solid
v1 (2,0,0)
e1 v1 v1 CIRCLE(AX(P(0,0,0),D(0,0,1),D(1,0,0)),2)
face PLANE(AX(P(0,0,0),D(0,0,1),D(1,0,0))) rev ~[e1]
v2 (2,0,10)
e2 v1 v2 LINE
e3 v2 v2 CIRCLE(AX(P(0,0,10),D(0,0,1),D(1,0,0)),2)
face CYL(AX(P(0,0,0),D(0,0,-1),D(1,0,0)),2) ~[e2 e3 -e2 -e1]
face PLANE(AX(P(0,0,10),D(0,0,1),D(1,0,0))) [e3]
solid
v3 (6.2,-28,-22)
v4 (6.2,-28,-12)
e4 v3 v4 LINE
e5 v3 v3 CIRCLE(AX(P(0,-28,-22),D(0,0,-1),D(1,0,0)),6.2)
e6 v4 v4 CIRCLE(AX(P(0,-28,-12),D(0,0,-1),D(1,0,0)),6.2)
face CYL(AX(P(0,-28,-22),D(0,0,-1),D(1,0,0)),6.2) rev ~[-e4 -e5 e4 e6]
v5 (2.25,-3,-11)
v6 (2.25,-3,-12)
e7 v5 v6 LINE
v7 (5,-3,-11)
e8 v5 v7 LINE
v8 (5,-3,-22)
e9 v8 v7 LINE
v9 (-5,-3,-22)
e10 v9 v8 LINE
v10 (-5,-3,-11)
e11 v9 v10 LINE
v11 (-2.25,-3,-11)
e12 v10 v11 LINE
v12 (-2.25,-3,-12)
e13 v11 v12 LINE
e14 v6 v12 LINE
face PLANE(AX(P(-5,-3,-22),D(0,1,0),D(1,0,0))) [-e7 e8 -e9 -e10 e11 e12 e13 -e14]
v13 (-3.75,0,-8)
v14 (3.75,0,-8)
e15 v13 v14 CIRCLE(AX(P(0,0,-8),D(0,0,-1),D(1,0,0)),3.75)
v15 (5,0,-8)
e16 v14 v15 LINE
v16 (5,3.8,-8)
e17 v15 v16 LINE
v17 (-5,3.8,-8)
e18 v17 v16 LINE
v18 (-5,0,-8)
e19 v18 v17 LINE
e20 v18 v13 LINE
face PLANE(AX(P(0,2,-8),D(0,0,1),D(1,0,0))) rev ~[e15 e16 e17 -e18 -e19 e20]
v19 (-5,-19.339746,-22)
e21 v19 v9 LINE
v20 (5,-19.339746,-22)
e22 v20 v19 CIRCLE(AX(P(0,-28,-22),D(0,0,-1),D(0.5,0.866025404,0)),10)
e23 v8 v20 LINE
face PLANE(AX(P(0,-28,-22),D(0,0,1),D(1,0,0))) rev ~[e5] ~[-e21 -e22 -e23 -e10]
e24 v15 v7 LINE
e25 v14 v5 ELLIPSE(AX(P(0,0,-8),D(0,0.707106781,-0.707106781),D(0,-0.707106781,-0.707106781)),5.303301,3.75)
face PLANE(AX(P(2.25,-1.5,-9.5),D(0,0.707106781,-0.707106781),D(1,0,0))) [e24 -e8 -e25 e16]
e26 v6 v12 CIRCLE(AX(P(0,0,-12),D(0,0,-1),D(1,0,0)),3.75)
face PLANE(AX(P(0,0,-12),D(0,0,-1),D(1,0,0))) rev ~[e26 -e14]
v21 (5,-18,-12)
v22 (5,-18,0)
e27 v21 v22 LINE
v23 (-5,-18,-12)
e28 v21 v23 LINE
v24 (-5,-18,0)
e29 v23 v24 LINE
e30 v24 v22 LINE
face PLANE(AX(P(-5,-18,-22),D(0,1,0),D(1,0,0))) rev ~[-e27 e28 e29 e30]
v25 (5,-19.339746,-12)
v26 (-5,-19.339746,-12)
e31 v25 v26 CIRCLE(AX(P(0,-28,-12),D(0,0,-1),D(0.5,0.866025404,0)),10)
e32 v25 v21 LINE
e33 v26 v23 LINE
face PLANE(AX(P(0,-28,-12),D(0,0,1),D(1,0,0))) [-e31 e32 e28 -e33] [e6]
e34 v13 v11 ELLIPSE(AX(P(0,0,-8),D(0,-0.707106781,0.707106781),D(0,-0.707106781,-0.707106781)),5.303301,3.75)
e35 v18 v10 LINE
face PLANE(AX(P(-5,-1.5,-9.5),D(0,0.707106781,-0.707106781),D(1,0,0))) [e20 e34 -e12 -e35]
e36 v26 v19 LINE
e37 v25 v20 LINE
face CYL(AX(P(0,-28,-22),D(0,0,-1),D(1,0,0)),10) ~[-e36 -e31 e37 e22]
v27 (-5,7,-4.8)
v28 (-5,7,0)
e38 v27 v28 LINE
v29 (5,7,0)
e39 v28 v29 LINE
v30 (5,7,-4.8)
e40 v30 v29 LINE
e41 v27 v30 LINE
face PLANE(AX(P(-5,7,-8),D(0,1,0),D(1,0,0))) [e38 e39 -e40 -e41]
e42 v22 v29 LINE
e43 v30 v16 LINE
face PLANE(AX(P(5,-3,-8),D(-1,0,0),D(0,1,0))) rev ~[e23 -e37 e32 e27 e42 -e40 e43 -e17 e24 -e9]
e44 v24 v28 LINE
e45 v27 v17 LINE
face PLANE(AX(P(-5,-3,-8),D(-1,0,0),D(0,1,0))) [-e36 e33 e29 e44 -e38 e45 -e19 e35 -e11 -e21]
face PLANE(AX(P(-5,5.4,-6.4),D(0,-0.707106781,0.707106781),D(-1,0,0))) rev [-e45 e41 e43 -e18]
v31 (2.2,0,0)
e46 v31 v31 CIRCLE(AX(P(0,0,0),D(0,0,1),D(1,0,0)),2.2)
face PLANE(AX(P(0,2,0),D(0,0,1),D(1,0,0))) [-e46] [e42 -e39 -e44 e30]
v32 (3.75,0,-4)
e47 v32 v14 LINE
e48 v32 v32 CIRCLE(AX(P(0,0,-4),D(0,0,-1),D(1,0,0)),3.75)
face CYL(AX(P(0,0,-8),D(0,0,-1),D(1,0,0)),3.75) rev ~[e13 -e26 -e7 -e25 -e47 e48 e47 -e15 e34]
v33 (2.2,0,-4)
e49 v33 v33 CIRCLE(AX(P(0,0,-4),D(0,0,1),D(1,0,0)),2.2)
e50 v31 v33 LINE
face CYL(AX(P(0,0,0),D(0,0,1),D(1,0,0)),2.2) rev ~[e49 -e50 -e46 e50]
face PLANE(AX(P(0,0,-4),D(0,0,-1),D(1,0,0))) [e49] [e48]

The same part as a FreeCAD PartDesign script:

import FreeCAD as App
import Part
import Sketcher
from FreeCAD import Vector
Q = App.Units.Quantity


def edges_at(feature, points):
    """Names of the edges that pass closest to the given points."""
    edges = feature.Shape.Edges
    near = lambda p: min(range(len(edges)), key=lambda i: edges[i].distToShape(Part.Vertex(*p))[0])
    return sorted({f"Edge{near(p) + 1}" for p in points})

doc = App.newDocument("Part")
params = doc.addObject("Spreadsheet::Sheet", "Params")
for row, (alias, value) in enumerate([
    ("sketch1_diameter", "4 mm"),
    ("pad1_length", "10 mm"),
    ("sketch2_width", "10 mm"),
    ("sketch2_height", "16 mm"),
    ("pad2_length", "10 mm"),
    ("sketch3_width", "10 mm"),
    ("sketch3_height", "15 mm"),
    ("pad3_length", "22 mm"),
    ("sketch4_width", "10 mm"),
    ("pad4_length", "8 mm"),
    ("sketch5_diameter", "20 mm"),
    ("pad5_length", "10 mm"),
    ("sketch6_diameter", "4.4 mm"),
    ("pocket1_length", "14 mm"),
    ("sketch7_diameter", "7.5 mm"),
    ("pocket2_length", "8 mm"),
    ("chamfer_size", "3.2 mm"),
    ("chamfer2_size", "3 mm"),
    ("sketch8_diameter", "12.4 mm"),
    ("pocket3_length", "14 mm"),
], start=1):
    params.set(f"A{row}", alias)
    params.set(f"B{row}", "=" + value)
    params.setAlias(f"B{row}", alias)

body = doc.addObject("PartDesign::Body", "Body")

# Sketch on XY plane
sketch1 = body.newObject("Sketcher::SketchObject", "Sketch")
sketch1.AttachmentSupport = (doc.getObject("XY_Plane"), [""])
sketch1.MapMode = "FlatFace"
sketch1.addGeometry(Part.Circle(Vector(0, 0, 0), Vector(0, 0, 1), 2), False)
sketch1.addConstraint([
    Sketcher.Constraint("Coincident", 0, 3, -1, 1),
    Sketcher.Constraint("Diameter", 0, Q("4 mm")),
])
sketch1.setExpression("Constraints[1]", "Params.sketch1_diameter")
pad1 = body.newObject("PartDesign::Pad", "Pad")
pad1.Profile = sketch1
pad1.setExpression("Length", "Params.pad1_length")
body2 = doc.addObject("PartDesign::Body", "Body001")

# Sketch on XY plane
sketch2 = body2.newObject("Sketcher::SketchObject", "Sketch001")
sketch2.AttachmentSupport = (doc.getObject("XY_Plane001"), [""])
sketch2.MapMode = "FlatFace"
sketch2.AttachmentOffset = App.Placement(Vector(0, 0, -22), App.Rotation())
sketch2.addGeometry([
    Part.LineSegment(Vector(-5, -4, 0), Vector(-5, -20, 0)),
    Part.LineSegment(Vector(-5, -20, 0), Vector(5, -20, 0)),
    Part.LineSegment(Vector(5, -20, 0), Vector(5, -4, 0)),
    Part.LineSegment(Vector(5, -4, 0), Vector(-5, -4, 0)),
], False)
sketch2.addConstraint([
    Sketcher.Constraint("Coincident", 0, 2, 1, 1),
    Sketcher.Constraint("Coincident", 1, 2, 2, 1),
    Sketcher.Constraint("Coincident", 2, 2, 3, 1),
    Sketcher.Constraint("Coincident", 3, 2, 0, 1),
    Sketcher.Constraint("Vertical", 0),
    Sketcher.Constraint("Horizontal", 1),
    Sketcher.Constraint("Vertical", 2),
    Sketcher.Constraint("Horizontal", 3),
    Sketcher.Constraint("DistanceX", 1, 1, 1, 2, Q("10 mm")),
    Sketcher.Constraint("DistanceY", 0, 2, 0, 1, Q("16 mm")),
    Sketcher.Constraint("DistanceX", 0, 2, -1, 1, Q("5 mm")),
    Sketcher.Constraint("DistanceY", 0, 2, -1, 1, Q("20 mm")),
])
sketch2.setExpression("Constraints[8]", "Params.sketch2_width")
sketch2.setExpression("Constraints[9]", "Params.sketch2_height")
pad2 = body2.newObject("PartDesign::Pad", "Pad001")
pad2.Profile = sketch2
pad2.setExpression("Length", "Params.pad2_length")
body3 = doc.addObject("PartDesign::Body", "Body002")

# Sketch on XY plane
sketch3 = body3.newObject("Sketcher::SketchObject", "Sketch002")
sketch3.AttachmentSupport = (doc.getObject("XY_Plane002"), [""])
sketch3.MapMode = "FlatFace"
sketch3.AttachmentOffset = App.Placement(Vector(0, 0, -22), App.Rotation())
sketch3.addGeometry([
    Part.LineSegment(Vector(-5, -3, 0), Vector(-5, -18, 0)),
    Part.LineSegment(Vector(-5, -18, 0), Vector(5, -18, 0)),
    Part.LineSegment(Vector(5, -18, 0), Vector(5, -3, 0)),
    Part.LineSegment(Vector(5, -3, 0), Vector(-5, -3, 0)),
], False)
sketch3.addConstraint([
    Sketcher.Constraint("Coincident", 0, 2, 1, 1),
    Sketcher.Constraint("Coincident", 1, 2, 2, 1),
    Sketcher.Constraint("Coincident", 2, 2, 3, 1),
    Sketcher.Constraint("Coincident", 3, 2, 0, 1),
    Sketcher.Constraint("Vertical", 0),
    Sketcher.Constraint("Horizontal", 1),
    Sketcher.Constraint("Vertical", 2),
    Sketcher.Constraint("Horizontal", 3),
    Sketcher.Constraint("DistanceX", 1, 1, 1, 2, Q("10 mm")),
    Sketcher.Constraint("DistanceY", 0, 2, 0, 1, Q("15 mm")),
    Sketcher.Constraint("DistanceX", 0, 2, -1, 1, Q("5 mm")),
    Sketcher.Constraint("DistanceY", 0, 2, -1, 1, Q("18 mm")),
])
sketch3.setExpression("Constraints[8]", "Params.sketch3_width")
sketch3.setExpression("Constraints[9]", "Params.sketch3_height")
pad3 = body3.newObject("PartDesign::Pad", "Pad002")
pad3.Profile = sketch3
pad3.setExpression("Length", "Params.pad3_length")
body4 = doc.addObject("PartDesign::Body", "Body003")

# Sketch on XY plane
sketch4 = body4.newObject("Sketcher::SketchObject", "Sketch003")
sketch4.AttachmentSupport = (doc.getObject("XY_Plane003"), [""])
sketch4.MapMode = "FlatFace"
sketch4.AttachmentOffset = App.Placement(Vector(0, 0, -8), App.Rotation())
sketch4.addGeometry([
    Part.LineSegment(Vector(-5, 7, 0), Vector(-5, -3, 0)),
    Part.LineSegment(Vector(-5, -3, 0), Vector(5, -3, 0)),
    Part.LineSegment(Vector(5, -3, 0), Vector(5, 7, 0)),
    Part.LineSegment(Vector(5, 7, 0), Vector(-5, 7, 0)),
], False)
sketch4.addConstraint([
    Sketcher.Constraint("Coincident", 0, 2, 1, 1),
    Sketcher.Constraint("Coincident", 1, 2, 2, 1),
    Sketcher.Constraint("Coincident", 2, 2, 3, 1),
    Sketcher.Constraint("Coincident", 3, 2, 0, 1),
    Sketcher.Constraint("Vertical", 0),
    Sketcher.Constraint("Horizontal", 1),
    Sketcher.Constraint("Vertical", 2),
    Sketcher.Constraint("Horizontal", 3),
    Sketcher.Constraint("Equal", 3, 0),
    Sketcher.Constraint("DistanceX", 1, 1, 1, 2, Q("10 mm")),
    Sketcher.Constraint("DistanceX", 0, 2, -1, 1, Q("5 mm")),
    Sketcher.Constraint("DistanceY", 0, 2, -1, 1, Q("3 mm")),
])
sketch4.setExpression("Constraints[9]", "Params.sketch4_width")
pad4 = body4.newObject("PartDesign::Pad", "Pad003")
pad4.Profile = sketch4
pad4.setExpression("Length", "Params.pad4_length")
body5 = doc.addObject("PartDesign::Body", "Body004")

# Sketch on XY plane
sketch5 = body5.newObject("Sketcher::SketchObject", "Sketch004")
sketch5.AttachmentSupport = (doc.getObject("XY_Plane004"), [""])
sketch5.MapMode = "FlatFace"
sketch5.AttachmentOffset = App.Placement(Vector(0, 0, -22), App.Rotation())
sketch5.addGeometry(Part.Circle(Vector(0, -28, 0), Vector(0, 0, 1), 10), False)
sketch5.addConstraint([
    Sketcher.Constraint("PointOnObject", 0, 3, -2),
    Sketcher.Constraint("Diameter", 0, Q("20 mm")),
    Sketcher.Constraint("DistanceY", 0, 3, -1, 1, Q("28 mm")),
])
sketch5.setExpression("Constraints[1]", "Params.sketch5_diameter")
pad5 = body5.newObject("PartDesign::Pad", "Pad004")
pad5.Profile = sketch5
pad5.setExpression("Length", "Params.pad5_length")
doc.recompute()

boolean = body5.newObject("PartDesign::Boolean", "Boolean")
boolean.Type = "Fuse"
boolean.addObjects([body2])
doc.recompute()

boolean2 = body5.newObject("PartDesign::Boolean", "Boolean001")
boolean2.Type = "Fuse"
boolean2.addObjects([body3])
doc.recompute()

boolean3 = body5.newObject("PartDesign::Boolean", "Boolean002")
boolean3.Type = "Fuse"
boolean3.addObjects([body4])

# Sketch on XY plane
sketch6 = body5.newObject("Sketcher::SketchObject", "Sketch005")
sketch6.AttachmentSupport = (doc.getObject("XY_Plane004"), [""])
sketch6.MapMode = "FlatFace"
sketch6.addGeometry(Part.Circle(Vector(0, 0, 0), Vector(0, 0, 1), 2.2), False)
sketch6.addConstraint([
    Sketcher.Constraint("Coincident", 0, 3, -1, 1),
    Sketcher.Constraint("Diameter", 0, Q("4.4 mm")),
])
sketch6.setExpression("Constraints[1]", "Params.sketch6_diameter")
pocket1 = body5.newObject("PartDesign::Pocket", "Pocket")
pocket1.Profile = sketch6
pocket1.setExpression("Length", "Params.pocket1_length")

# Sketch on XY plane
sketch7 = body5.newObject("Sketcher::SketchObject", "Sketch006")
sketch7.AttachmentSupport = (doc.getObject("XY_Plane004"), [""])
sketch7.MapMode = "FlatFace"
sketch7.AttachmentOffset = App.Placement(Vector(0, 0, -8), App.Rotation())
sketch7.addGeometry(Part.Circle(Vector(0, 0, 0), Vector(0, 0, 1), 3.8), False)
sketch7.addConstraint([
    Sketcher.Constraint("Coincident", 0, 3, -1, 1),
    Sketcher.Constraint("Diameter", 0, Q("7.5 mm")),
])
sketch7.setExpression("Constraints[1]", "Params.sketch7_diameter")
pocket2 = body5.newObject("PartDesign::Pocket", "Pocket001")
pocket2.Profile = sketch7
pocket2.setExpression("Length", "Params.pocket2_length")
pocket2.Midplane = True
doc.recompute()

chamfer = body5.newObject("PartDesign::Chamfer", "Chamfer")
chamfer.Base = (pocket2, edges_at(pocket2, [(0, 7, -8)]))
chamfer.setExpression("Size", "Params.chamfer_size")
doc.recompute()

chamfer2 = body5.newObject("PartDesign::Chamfer", "Chamfer001")
chamfer2.Base = (chamfer, edges_at(chamfer, [(-3.625, -3, -8), (3.625, -3, -8)]))
chamfer2.setExpression("Size", "Params.chamfer2_size")

# Sketch on XY plane
sketch8 = body5.newObject("Sketcher::SketchObject", "Sketch007")
sketch8.AttachmentSupport = (doc.getObject("XY_Plane004"), [""])
sketch8.MapMode = "FlatFace"
sketch8.AttachmentOffset = App.Placement(Vector(0, 0, -22), App.Rotation())
sketch8.addGeometry(Part.Circle(Vector(0, -28, 0), Vector(0, 0, 1), 6), False)
sketch8.addConstraint([
    Sketcher.Constraint("PointOnObject", 0, 3, -2),
    Sketcher.Constraint("Diameter", 0, Q("12.4 mm")),
    Sketcher.Constraint("DistanceY", 0, 3, -1, 1, Q("28 mm")),
])
sketch8.setExpression("Constraints[1]", "Params.sketch8_diameter")
pocket3 = body5.newObject("PartDesign::Pocket", "Pocket002")
pocket3.Profile = sketch8
pocket3.setExpression("Length", "Params.pocket3_length")
pocket3.Reversed = True

doc.recompute()
